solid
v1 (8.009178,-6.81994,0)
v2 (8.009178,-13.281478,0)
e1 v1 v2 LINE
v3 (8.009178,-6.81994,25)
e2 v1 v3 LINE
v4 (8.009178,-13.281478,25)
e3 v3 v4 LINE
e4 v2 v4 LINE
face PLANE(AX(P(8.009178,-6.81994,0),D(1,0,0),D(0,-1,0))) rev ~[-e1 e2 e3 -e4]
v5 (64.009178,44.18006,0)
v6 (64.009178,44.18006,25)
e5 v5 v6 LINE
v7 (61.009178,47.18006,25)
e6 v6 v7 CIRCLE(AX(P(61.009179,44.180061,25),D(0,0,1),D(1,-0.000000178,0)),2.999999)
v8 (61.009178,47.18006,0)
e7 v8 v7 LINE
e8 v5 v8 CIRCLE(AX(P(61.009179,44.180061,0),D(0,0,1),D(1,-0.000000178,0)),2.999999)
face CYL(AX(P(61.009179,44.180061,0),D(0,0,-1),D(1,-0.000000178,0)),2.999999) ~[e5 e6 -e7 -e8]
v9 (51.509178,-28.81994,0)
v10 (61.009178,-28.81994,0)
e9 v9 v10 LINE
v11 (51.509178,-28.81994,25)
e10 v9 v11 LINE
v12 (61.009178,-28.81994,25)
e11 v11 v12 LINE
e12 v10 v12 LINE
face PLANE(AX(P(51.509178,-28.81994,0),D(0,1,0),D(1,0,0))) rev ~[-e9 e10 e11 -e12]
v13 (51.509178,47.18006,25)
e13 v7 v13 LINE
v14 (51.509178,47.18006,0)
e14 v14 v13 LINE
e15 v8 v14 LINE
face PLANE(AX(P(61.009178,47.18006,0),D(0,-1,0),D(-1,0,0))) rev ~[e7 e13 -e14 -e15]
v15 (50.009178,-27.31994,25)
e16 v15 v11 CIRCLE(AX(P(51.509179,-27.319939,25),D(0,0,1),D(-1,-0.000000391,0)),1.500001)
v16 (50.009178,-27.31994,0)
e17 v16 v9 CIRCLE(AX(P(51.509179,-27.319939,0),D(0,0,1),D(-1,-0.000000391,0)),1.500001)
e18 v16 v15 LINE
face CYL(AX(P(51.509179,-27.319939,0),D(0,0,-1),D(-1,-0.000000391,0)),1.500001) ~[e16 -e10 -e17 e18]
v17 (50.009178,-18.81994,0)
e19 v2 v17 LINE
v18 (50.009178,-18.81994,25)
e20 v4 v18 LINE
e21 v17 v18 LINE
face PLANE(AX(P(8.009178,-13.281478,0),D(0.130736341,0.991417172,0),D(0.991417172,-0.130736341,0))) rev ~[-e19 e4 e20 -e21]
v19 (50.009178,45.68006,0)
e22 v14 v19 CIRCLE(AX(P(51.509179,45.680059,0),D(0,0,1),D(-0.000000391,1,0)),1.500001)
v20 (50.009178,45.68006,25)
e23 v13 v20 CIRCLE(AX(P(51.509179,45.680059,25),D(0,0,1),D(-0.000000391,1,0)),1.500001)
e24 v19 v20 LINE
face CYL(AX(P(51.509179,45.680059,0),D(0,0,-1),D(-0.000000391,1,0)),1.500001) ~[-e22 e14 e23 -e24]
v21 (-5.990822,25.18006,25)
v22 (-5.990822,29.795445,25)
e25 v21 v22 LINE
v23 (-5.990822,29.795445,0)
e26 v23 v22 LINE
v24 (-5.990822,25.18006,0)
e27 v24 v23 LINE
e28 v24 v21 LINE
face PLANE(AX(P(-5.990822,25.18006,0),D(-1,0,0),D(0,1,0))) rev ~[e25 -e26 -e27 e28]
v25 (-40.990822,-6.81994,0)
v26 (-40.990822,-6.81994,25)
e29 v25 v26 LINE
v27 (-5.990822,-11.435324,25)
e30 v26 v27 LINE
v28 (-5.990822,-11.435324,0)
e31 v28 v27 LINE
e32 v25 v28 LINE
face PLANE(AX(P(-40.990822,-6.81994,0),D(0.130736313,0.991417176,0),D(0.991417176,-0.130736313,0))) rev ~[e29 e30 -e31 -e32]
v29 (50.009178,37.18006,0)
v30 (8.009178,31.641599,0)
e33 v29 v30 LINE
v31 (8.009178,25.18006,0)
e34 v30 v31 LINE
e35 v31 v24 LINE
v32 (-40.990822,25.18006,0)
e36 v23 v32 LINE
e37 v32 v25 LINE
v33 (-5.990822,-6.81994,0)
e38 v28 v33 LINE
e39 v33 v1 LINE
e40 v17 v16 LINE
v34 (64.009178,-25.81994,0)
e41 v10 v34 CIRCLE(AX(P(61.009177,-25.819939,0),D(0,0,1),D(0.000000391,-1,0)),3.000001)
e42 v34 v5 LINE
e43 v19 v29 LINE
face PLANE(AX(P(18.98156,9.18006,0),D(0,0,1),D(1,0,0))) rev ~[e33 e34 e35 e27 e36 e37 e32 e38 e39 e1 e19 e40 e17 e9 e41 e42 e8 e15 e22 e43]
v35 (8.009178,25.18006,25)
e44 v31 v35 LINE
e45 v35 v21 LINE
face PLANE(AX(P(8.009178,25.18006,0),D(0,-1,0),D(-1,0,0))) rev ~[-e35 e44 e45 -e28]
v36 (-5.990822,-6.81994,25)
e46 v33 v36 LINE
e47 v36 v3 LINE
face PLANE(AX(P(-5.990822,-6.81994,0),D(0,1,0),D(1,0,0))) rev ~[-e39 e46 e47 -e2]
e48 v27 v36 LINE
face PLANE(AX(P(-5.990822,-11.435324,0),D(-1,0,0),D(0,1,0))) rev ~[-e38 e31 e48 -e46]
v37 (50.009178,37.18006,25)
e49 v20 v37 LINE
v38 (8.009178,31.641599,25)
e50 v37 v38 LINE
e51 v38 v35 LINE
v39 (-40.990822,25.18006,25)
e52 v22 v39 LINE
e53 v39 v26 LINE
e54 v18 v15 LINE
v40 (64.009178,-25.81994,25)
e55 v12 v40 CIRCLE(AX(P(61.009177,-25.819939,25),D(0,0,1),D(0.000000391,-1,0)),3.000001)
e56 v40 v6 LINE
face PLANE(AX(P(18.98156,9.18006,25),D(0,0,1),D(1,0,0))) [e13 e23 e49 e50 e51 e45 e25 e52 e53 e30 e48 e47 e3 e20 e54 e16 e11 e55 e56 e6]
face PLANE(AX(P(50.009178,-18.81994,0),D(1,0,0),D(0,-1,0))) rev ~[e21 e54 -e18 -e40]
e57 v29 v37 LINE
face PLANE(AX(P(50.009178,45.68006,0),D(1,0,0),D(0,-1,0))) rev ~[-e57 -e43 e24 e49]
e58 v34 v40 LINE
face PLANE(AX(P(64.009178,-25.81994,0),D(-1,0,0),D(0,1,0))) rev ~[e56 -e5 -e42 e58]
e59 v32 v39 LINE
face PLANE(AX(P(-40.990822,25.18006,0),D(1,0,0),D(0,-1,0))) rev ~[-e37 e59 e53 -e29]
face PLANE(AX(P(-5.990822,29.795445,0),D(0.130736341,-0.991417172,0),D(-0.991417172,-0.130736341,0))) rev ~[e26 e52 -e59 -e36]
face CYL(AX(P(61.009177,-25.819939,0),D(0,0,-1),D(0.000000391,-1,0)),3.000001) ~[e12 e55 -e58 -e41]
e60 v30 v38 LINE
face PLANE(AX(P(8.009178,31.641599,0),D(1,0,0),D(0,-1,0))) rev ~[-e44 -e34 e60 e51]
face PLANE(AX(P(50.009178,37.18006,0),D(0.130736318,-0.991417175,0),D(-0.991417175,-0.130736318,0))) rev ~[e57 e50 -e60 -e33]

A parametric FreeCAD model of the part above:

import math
import FreeCAD as App
import Part
import Sketcher
from FreeCAD import Vector

doc = App.newDocument("Part")
body = doc.addObject("PartDesign::Body", "Body")

sketch1 = body.newObject("Sketcher::SketchObject", "Sketch")
sketch1.AttachmentSupport = (doc.getObject("XY_Plane"), [""])
sketch1.MapMode = "FlatFace"
sketch1.addGeometry([
    Part.LineSegment(Vector(64.009178, -25.81994, 0), Vector(64.009178, 44.18006, 0)),
    Part.ArcOfCircle(Part.Circle(Vector(61.009179, 44.180061, 0), Vector(0, 0, 1), 2.999999), math.radians(-0.00001), math.radians(90.00001)),
    Part.LineSegment(Vector(61.009178, 47.18006, 0), Vector(51.509178, 47.18006, 0)),
    Part.ArcOfCircle(Part.Circle(Vector(51.509179, 45.680059, 0), Vector(0, 0, 1), 1.500001), math.radians(90.000022), math.radians(179.999978)),
    Part.LineSegment(Vector(50.009178, 45.68006, 0), Vector(50.009178, 37.18006, 0)),
    Part.LineSegment(Vector(50.009178, 37.18006, 0), Vector(8.009178, 31.641599, 0)),
    Part.LineSegment(Vector(8.009178, 31.641599, 0), Vector(8.009178, 25.18006, 0)),
    Part.LineSegment(Vector(8.009178, 25.18006, 0), Vector(-5.990822, 25.18006, 0)),
    Part.LineSegment(Vector(-5.990822, 25.18006, 0), Vector(-5.990822, 29.795445, 0)),
    Part.LineSegment(Vector(-5.990822, 29.795445, 0), Vector(-40.990822, 25.18006, 0)),
    Part.LineSegment(Vector(-40.990822, 25.18006, 0), Vector(-40.990822, -6.81994, 0)),
    Part.LineSegment(Vector(-40.990822, -6.81994, 0), Vector(-5.990822, -11.435324, 0)),
    Part.LineSegment(Vector(-5.990822, -11.435324, 0), Vector(-5.990822, -6.81994, 0)),
    Part.LineSegment(Vector(-5.990822, -6.81994, 0), Vector(8.009178, -6.81994, 0)),
    Part.LineSegment(Vector(8.009178, -6.81994, 0), Vector(8.009178, -13.281478, 0)),
    Part.LineSegment(Vector(8.009178, -13.281478, 0), Vector(50.009178, -18.81994, 0)),
    Part.LineSegment(Vector(50.009178, -18.81994, 0), Vector(50.009178, -27.31994, 0)),
    Part.ArcOfCircle(Part.Circle(Vector(51.509179, -27.319939, 0), Vector(0, 0, 1), 1.500001), math.radians(-179.999978), math.radians(-90.000022)),
    Part.LineSegment(Vector(51.509178, -28.81994, 0), Vector(61.009178, -28.81994, 0)),
    Part.ArcOfCircle(Part.Circle(Vector(61.009177, -25.819939, 0), Vector(0, 0, 1), 3.000001), math.radians(-89.999978), math.radians(-0.000022)),
], False)
sketch1.addConstraint([
    Sketcher.Constraint("Tangent", 0, 2, 1, 1),
    Sketcher.Constraint("Tangent", 1, 2, 2, 1),
    Sketcher.Constraint("Tangent", 2, 2, 3, 1),
    Sketcher.Constraint("Tangent", 3, 2, 4, 1),
    Sketcher.Constraint("Coincident", 4, 2, 5, 1),
    Sketcher.Constraint("Coincident", 5, 2, 6, 1),
    Sketcher.Constraint("Coincident", 6, 2, 7, 1),
    Sketcher.Constraint("Coincident", 7, 2, 8, 1),
    Sketcher.Constraint("Coincident", 8, 2, 9, 1),
    Sketcher.Constraint("Coincident", 9, 2, 10, 1),
    Sketcher.Constraint("Coincident", 10, 2, 11, 1),
    Sketcher.Constraint("Coincident", 11, 2, 12, 1),
    Sketcher.Constraint("Coincident", 12, 2, 13, 1),
    Sketcher.Constraint("Coincident", 13, 2, 14, 1),
    Sketcher.Constraint("Coincident", 14, 2, 15, 1),
    Sketcher.Constraint("Coincident", 15, 2, 16, 1),
    Sketcher.Constraint("Tangent", 16, 2, 17, 1),
    Sketcher.Constraint("Tangent", 17, 2, 18, 1),
    Sketcher.Constraint("Tangent", 18, 2, 19, 1),
    Sketcher.Constraint("Tangent", 19, 2, 0, 1),
    Sketcher.Constraint("Vertical", 0),
    Sketcher.Constraint("Horizontal", 2),
    Sketcher.Constraint("Vertical", 4),
    Sketcher.Constraint("Vertical", 6),
    Sketcher.Constraint("Horizontal", 7),
    Sketcher.Constraint("Vertical", 8),
    Sketcher.Constraint("Vertical", 10),
    Sketcher.Constraint("Vertical", 12),
    Sketcher.Constraint("Horizontal", 13),
    Sketcher.Constraint("Vertical", 14),
    Sketcher.Constraint("Vertical", 16),
    Sketcher.Constraint("Horizontal", 18),
    Sketcher.Constraint("Equal", 3, 17),
    Sketcher.Constraint("Equal", 1, 19),
    Sketcher.Constraint("Parallel", 5, 9),
    Sketcher.Constraint("Parallel", 11, 15),
    Sketcher.Constraint("Horizontal", 7, 2, 9, 2),
    Sketcher.Constraint("Horizontal", 10, 2, 12, 2),
    Sketcher.Constraint("Vertical", 3, 3, 17, 3),
    Sketcher.Constraint("Vertical", 8, 2, 11, 2),
    Sketcher.Constraint("Vertical", 6, 2, 13, 2),
    Sketcher.Constraint("Equal", 8, 12),
    Sketcher.Constraint("Equal", 6, 14),
    Sketcher.Constraint("Equal", 4, 16),
    Sketcher.Constraint("Radius", 1, 2.999999),
    Sketcher.Constraint("Radius", 3, 1.500001),
    Sketcher.Constraint("DistanceX", 7, 2, 7, 1, 14.0),
    Sketcher.Constraint("DistanceY", 0, 1, 0, 2, 70.0),
    Sketcher.Constraint("DistanceY", 10, 2, 10, 1, 32.0),
    Sketcher.Constraint("DistanceX", 2, 2, 2, 1, 9.5),
    Sketcher.Constraint("DistanceY", 4, 2, 4, 1, 8.5),
    Sketcher.Constraint("DistanceX", 5, 2, 4, 2, 42.0),
    Sketcher.Constraint("DistanceX", 9, 2, 7, 2, 35.0),
    Sketcher.Constraint("Distance", 9, 35.303),
    Sketcher.Constraint("DistanceY", -1, 1, 5, 2, 31.641599),
    Sketcher.Constraint("DistanceX", -1, 1, 1, 3, 61.009179),
])
pad1 = body.newObject("PartDesign::Pad", "Pad")
pad1.Profile = sketch1
pad1.Length = 25

doc.recompute()
